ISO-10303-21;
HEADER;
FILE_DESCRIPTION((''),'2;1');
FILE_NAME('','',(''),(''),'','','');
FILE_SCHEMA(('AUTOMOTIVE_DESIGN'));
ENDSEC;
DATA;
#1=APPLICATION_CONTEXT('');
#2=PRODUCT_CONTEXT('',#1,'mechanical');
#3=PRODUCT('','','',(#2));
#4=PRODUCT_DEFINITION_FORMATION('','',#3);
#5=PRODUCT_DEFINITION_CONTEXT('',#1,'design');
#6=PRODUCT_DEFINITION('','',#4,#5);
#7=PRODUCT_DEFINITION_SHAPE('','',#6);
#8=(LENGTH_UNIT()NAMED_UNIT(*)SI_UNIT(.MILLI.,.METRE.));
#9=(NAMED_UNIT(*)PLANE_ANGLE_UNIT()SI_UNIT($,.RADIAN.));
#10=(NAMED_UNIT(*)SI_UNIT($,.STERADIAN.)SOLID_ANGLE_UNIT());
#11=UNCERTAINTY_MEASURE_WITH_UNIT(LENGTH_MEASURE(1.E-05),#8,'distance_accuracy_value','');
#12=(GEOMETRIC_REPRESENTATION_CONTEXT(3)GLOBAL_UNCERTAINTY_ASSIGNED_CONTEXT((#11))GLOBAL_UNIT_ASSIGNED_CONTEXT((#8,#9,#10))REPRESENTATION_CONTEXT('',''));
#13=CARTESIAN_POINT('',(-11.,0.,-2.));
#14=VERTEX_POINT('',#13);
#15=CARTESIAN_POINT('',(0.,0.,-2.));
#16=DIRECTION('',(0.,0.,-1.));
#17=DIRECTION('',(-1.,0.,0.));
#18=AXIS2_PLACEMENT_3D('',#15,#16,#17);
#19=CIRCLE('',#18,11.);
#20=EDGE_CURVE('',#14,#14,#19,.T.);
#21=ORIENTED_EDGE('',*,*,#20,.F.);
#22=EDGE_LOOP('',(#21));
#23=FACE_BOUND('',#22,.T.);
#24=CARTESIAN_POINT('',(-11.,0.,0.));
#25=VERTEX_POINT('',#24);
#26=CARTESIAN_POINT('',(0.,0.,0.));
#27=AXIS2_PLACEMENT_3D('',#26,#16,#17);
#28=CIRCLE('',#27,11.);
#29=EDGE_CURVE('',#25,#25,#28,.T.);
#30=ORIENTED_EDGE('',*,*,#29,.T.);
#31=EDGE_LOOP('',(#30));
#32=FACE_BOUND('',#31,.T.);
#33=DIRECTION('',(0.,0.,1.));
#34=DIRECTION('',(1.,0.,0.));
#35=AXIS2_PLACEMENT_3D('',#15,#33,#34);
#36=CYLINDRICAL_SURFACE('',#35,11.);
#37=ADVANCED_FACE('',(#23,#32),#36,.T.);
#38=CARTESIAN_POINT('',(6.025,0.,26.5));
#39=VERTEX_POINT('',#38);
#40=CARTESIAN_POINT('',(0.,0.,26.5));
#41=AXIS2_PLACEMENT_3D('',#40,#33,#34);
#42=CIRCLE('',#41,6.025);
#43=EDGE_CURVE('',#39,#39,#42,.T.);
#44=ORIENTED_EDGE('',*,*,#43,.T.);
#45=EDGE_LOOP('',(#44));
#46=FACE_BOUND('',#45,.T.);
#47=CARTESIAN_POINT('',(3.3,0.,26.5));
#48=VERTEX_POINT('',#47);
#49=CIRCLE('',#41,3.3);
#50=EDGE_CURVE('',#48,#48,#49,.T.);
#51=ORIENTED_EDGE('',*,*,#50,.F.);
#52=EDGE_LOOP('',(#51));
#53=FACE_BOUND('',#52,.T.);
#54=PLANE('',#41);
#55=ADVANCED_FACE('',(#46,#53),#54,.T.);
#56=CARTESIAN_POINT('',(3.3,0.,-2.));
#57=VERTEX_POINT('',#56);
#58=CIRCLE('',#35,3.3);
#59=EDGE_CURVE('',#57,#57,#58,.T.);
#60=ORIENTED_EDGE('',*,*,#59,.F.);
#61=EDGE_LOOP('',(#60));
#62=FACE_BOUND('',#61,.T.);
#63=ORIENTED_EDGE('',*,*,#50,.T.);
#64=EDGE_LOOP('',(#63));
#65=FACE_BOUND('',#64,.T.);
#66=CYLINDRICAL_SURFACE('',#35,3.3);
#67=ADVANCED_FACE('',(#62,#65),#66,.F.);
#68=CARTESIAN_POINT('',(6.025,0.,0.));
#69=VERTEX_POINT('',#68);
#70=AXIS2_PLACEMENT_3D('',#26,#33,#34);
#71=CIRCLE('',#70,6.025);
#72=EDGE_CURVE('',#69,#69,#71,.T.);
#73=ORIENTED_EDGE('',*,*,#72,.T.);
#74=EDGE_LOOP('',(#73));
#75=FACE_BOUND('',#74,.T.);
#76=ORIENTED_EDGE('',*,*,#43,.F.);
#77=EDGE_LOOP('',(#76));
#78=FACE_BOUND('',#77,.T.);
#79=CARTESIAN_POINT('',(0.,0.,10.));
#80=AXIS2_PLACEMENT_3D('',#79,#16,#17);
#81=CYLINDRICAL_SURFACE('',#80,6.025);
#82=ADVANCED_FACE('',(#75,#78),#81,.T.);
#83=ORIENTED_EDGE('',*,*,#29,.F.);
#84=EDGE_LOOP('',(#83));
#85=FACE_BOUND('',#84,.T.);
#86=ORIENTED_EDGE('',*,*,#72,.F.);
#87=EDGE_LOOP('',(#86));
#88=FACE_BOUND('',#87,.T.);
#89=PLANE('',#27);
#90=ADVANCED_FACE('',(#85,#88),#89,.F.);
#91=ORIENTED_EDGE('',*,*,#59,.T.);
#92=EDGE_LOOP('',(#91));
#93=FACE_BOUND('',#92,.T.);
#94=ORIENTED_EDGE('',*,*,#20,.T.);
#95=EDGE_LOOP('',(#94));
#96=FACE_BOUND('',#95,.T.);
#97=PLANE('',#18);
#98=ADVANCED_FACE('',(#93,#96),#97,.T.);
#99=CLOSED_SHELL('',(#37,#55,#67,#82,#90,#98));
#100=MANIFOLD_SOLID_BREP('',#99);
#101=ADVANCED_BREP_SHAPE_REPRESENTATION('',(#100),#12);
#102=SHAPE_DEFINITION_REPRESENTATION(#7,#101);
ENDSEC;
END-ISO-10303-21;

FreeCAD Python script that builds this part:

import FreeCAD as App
import Part
import Sketcher

V = App.Vector

doc = App.newDocument("Part")
body = doc.addObject("PartDesign::Body", "Body")

# Sketch on XY plane
sketch1 = doc.addObject("Sketcher::SketchObject", "Sketch")
body.addObject(sketch1)
sketch1.AttachmentSupport = (doc.XY_Plane, [""])
sketch1.MapMode = "FlatFace"
sketch1.addGeometry(Part.Circle(V(0, 0, 0), V(0, 0, 1), 6.025), False)
sketch1.addConstraint([
    Sketcher.Constraint("Coincident", 0, 3, -1, 1),
    Sketcher.Constraint("Diameter", 0, 12.05),
])
pad1 = doc.addObject("PartDesign::Pad", "Pad")
body.addObject(pad1)
pad1.Profile = sketch1
pad1.Length = 10

# Sketch on XY plane
sketch2 = doc.addObject("Sketcher::SketchObject", "Sketch001")
body.addObject(sketch2)
sketch2.AttachmentSupport = (doc.XY_Plane, [""])
sketch2.MapMode = "FlatFace"
sketch2.AttachmentOffset = App.Placement(V(0, 0, 10), App.Rotation())
sketch2.addGeometry(Part.Circle(V(0, 0, 0), V(0, 0, 1), 6.025), False)
sketch2.addConstraint([
    Sketcher.Constraint("Coincident", 0, 3, -1, 1),
    Sketcher.Constraint("Diameter", 0, 12.05),
])
pad2 = doc.addObject("PartDesign::Pad", "Pad001")
body.addObject(pad2)
pad2.Profile = sketch2
pad2.Length = 16.5

# Sketch on XY plane
sketch3 = doc.addObject("Sketcher::SketchObject", "Sketch002")
body.addObject(sketch3)
sketch3.AttachmentSupport = (doc.XY_Plane, [""])
sketch3.MapMode = "FlatFace"
sketch3.addGeometry(Part.Circle(V(0, 0, 0), V(0, 0, 1), 11), False)
sketch3.addConstraint([
    Sketcher.Constraint("Coincident", 0, 3, -1, 1),
    Sketcher.Constraint("Diameter", 0, 22.0),
])
pad3 = doc.addObject("PartDesign::Pad", "Pad002")
body.addObject(pad3)
pad3.Profile = sketch3
pad3.Length = 2
pad3.Reversed = True

# Sketch on XY plane
sketch4 = doc.addObject("Sketcher::SketchObject", "Sketch003")
body.addObject(sketch4)
sketch4.AttachmentSupport = (doc.XY_Plane, [""])
sketch4.MapMode = "FlatFace"
sketch4.AttachmentOffset = App.Placement(V(0, 0, 26.5), App.Rotation())
sketch4.addGeometry(Part.Circle(V(0, 0, 0), V(0, 0, 1), 3.3), False)
sketch4.addConstraint([
    Sketcher.Constraint("Coincident", 0, 3, -1, 1),
    Sketcher.Constraint("Diameter", 0, 6.6),
])
pocket1 = doc.addObject("PartDesign::Pocket", "Pocket")
body.addObject(pocket1)
pocket1.Profile = sketch4
pocket1.Type = "ThroughAll"

doc.recompute()
